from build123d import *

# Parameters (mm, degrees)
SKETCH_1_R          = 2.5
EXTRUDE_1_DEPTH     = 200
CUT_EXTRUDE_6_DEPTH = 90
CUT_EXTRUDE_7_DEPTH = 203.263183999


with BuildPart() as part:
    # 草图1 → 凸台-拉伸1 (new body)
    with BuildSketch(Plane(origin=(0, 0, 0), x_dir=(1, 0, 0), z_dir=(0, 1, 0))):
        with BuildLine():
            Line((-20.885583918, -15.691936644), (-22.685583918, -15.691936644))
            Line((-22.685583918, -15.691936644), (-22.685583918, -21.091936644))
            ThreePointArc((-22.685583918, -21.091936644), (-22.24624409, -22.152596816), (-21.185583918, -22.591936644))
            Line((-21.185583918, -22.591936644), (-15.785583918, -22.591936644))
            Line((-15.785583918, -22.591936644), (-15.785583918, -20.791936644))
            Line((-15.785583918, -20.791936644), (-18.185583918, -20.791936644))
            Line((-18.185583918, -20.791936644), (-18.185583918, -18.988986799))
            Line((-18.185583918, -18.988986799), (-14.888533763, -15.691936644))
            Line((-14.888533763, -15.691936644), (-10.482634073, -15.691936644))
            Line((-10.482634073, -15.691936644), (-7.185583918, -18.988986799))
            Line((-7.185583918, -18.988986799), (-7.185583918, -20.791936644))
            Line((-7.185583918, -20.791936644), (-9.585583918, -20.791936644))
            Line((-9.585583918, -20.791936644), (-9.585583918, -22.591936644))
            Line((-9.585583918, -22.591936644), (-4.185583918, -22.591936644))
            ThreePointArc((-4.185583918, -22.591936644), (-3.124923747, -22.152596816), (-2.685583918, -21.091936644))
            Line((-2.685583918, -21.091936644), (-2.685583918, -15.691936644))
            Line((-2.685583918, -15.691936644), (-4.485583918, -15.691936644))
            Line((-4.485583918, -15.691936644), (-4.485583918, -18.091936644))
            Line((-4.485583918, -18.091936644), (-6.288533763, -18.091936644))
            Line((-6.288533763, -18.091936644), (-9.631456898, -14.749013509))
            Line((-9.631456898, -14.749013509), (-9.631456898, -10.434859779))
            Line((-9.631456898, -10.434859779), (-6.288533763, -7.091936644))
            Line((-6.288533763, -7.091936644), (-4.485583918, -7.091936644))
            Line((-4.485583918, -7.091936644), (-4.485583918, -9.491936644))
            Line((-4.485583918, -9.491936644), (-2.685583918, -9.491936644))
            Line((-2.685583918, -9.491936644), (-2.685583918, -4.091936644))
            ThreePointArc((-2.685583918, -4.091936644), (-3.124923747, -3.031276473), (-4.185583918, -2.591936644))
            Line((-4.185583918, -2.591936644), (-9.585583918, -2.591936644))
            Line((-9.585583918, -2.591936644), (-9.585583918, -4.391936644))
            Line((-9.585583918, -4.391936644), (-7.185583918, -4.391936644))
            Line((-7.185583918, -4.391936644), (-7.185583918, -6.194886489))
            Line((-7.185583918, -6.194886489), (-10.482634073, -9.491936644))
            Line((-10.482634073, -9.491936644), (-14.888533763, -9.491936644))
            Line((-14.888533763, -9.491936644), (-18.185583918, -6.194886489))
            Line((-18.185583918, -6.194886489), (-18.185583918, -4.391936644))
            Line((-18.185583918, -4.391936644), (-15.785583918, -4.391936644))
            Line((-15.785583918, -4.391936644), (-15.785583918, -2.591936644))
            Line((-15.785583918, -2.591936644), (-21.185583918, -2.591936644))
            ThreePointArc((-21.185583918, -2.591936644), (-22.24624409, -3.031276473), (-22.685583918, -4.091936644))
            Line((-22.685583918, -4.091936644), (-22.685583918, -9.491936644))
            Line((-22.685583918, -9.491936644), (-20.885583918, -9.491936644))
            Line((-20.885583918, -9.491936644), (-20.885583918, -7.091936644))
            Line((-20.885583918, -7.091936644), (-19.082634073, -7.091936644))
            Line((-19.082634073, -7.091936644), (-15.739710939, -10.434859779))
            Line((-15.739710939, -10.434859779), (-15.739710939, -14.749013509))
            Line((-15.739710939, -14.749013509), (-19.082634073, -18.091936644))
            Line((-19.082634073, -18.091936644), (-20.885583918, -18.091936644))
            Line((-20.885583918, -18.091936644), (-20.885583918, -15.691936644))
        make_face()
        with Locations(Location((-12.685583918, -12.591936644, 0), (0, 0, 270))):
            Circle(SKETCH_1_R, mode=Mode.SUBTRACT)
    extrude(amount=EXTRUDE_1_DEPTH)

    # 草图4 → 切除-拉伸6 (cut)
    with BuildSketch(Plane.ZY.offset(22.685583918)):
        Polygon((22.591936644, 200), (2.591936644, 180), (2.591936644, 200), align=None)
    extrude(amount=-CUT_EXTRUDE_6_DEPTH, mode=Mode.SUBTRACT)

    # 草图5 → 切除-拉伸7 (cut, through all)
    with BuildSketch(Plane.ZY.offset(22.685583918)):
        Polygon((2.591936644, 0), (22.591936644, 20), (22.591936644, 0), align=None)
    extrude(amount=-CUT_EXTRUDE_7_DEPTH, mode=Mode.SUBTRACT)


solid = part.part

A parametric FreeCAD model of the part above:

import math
import FreeCAD as App
import Part
import Sketcher

V = App.Vector
Q = App.Units.Quantity

doc = App.newDocument("Part")
body = doc.addObject("PartDesign::Body", "Body")

# Sketch on XZ plane
sketch1 = body.newObject("Sketcher::SketchObject", "Sketch")
sketch1.AttachmentSupport = (doc.getObject("XZ_Plane"), [""])
sketch1.MapMode = "FlatFace"
sketch1.addGeometry([
    Part.LineSegment(V(-20.885584, 15.691937, 0), V(-22.685584, 15.691937, 0)),  # 0
    Part.LineSegment(V(-22.685584, 15.691937, 0), V(-22.685584, 21.091937, 0)),  # 1
    Part.ArcOfCircle(Part.Circle(V(-21.185584, 21.091937, 0), V(0, 0, 1), 1.5), math.radians(90), math.radians(180)),  # 2
    Part.LineSegment(V(-21.185584, 22.591937, 0), V(-15.785584, 22.591937, 0)),  # 3
    Part.LineSegment(V(-15.785584, 22.591937, 0), V(-15.785584, 20.791937, 0)),  # 4
    Part.LineSegment(V(-15.785584, 20.791937, 0), V(-18.185584, 20.791937, 0)),  # 5
    Part.LineSegment(V(-18.185584, 20.791937, 0), V(-18.185584, 18.988987, 0)),  # 6
    Part.LineSegment(V(-18.185584, 18.988987, 0), V(-14.888534, 15.691937, 0)),  # 7
    Part.LineSegment(V(-14.888534, 15.691937, 0), V(-10.482634, 15.691937, 0)),  # 8
    Part.LineSegment(V(-10.482634, 15.691937, 0), V(-7.185584, 18.988987, 0)),  # 9
    Part.LineSegment(V(-7.185584, 18.988987, 0), V(-7.185584, 20.791937, 0)),  # 10
    Part.LineSegment(V(-7.185584, 20.791937, 0), V(-9.585584, 20.791937, 0)),  # 11
    Part.LineSegment(V(-9.585584, 20.791937, 0), V(-9.585584, 22.591937, 0)),  # 12
    Part.LineSegment(V(-9.585584, 22.591937, 0), V(-4.185584, 22.591937, 0)),  # 13
    Part.ArcOfCircle(Part.Circle(V(-4.185584, 21.091937, 0), V(0, 0, 1), 1.5), math.radians(0), math.radians(90)),  # 14
    Part.LineSegment(V(-2.685584, 21.091937, 0), V(-2.685584, 15.691937, 0)),  # 15
    Part.LineSegment(V(-2.685584, 15.691937, 0), V(-4.485584, 15.691937, 0)),  # 16
    Part.LineSegment(V(-4.485584, 15.691937, 0), V(-4.485584, 18.091937, 0)),  # 17
    Part.LineSegment(V(-4.485584, 18.091937, 0), V(-6.288534, 18.091937, 0)),  # 18
    Part.LineSegment(V(-6.288534, 18.091937, 0), V(-9.631457, 14.749014, 0)),  # 19
    Part.LineSegment(V(-9.631457, 14.749014, 0), V(-9.631457, 10.43486, 0)),  # 20
    Part.LineSegment(V(-9.631457, 10.43486, 0), V(-6.288534, 7.091937, 0)),  # 21
    Part.LineSegment(V(-6.288534, 7.091937, 0), V(-4.485584, 7.091937, 0)),  # 22
    Part.LineSegment(V(-4.485584, 7.091937, 0), V(-4.485584, 9.491937, 0)),  # 23
    Part.LineSegment(V(-4.485584, 9.491937, 0), V(-2.685584, 9.491937, 0)),  # 24
    Part.LineSegment(V(-2.685584, 9.491937, 0), V(-2.685584, 4.091937, 0)),  # 25
    Part.ArcOfCircle(Part.Circle(V(-4.185584, 4.091937, 0), V(0, 0, 1), 1.5), math.radians(-90), math.radians(0)),  # 26
    Part.LineSegment(V(-4.185584, 2.591937, 0), V(-9.585584, 2.591937, 0)),  # 27
    Part.LineSegment(V(-9.585584, 2.591937, 0), V(-9.585584, 4.391937, 0)),  # 28
    Part.LineSegment(V(-9.585584, 4.391937, 0), V(-7.185584, 4.391937, 0)),  # 29
    Part.LineSegment(V(-7.185584, 4.391937, 0), V(-7.185584, 6.194886, 0)),  # 30
    Part.LineSegment(V(-7.185584, 6.194886, 0), V(-10.482634, 9.491937, 0)),  # 31
    Part.LineSegment(V(-10.482634, 9.491937, 0), V(-14.888534, 9.491937, 0)),  # 32
    Part.LineSegment(V(-14.888534, 9.491937, 0), V(-18.185584, 6.194886, 0)),  # 33
    Part.LineSegment(V(-18.185584, 6.194886, 0), V(-18.185584, 4.391937, 0)),  # 34
    Part.LineSegment(V(-18.185584, 4.391937, 0), V(-15.785584, 4.391937, 0)),  # 35
    Part.LineSegment(V(-15.785584, 4.391937, 0), V(-15.785584, 2.591937, 0)),  # 36
    Part.LineSegment(V(-15.785584, 2.591937, 0), V(-21.185584, 2.591937, 0)),  # 37
    Part.ArcOfCircle(Part.Circle(V(-21.185584, 4.091937, 0), V(0, 0, 1), 1.5), math.radians(-180), math.radians(-90)),  # 38
    Part.LineSegment(V(-22.685584, 4.091937, 0), V(-22.685584, 9.491937, 0)),  # 39
    Part.LineSegment(V(-22.685584, 9.491937, 0), V(-20.885584, 9.491937, 0)),  # 40
    Part.LineSegment(V(-20.885584, 9.491937, 0), V(-20.885584, 7.091937, 0)),  # 41
    Part.LineSegment(V(-20.885584, 7.091937, 0), V(-19.082634, 7.091937, 0)),  # 42
    Part.LineSegment(V(-19.082634, 7.091937, 0), V(-15.739711, 10.43486, 0)),  # 43
    Part.LineSegment(V(-15.739711, 10.43486, 0), V(-15.739711, 14.749014, 0)),  # 44
    Part.LineSegment(V(-15.739711, 14.749014, 0), V(-19.082634, 18.091937, 0)),  # 45
    Part.LineSegment(V(-19.082634, 18.091937, 0), V(-20.885584, 18.091937, 0)),  # 46
    Part.LineSegment(V(-20.885584, 18.091937, 0), V(-20.885584, 15.691937, 0)),  # 47
    Part.Circle(V(-12.685584, 12.591937, 0), V(0, 0, 1), 2.5),  # 48
], False)
sketch1.addConstraint([
    Sketcher.Constraint("Coincident", 0, 2, 1, 1),
    Sketcher.Constraint("Tangent", 1, 2, 2, 2),
    Sketcher.Constraint("Tangent", 2, 1, 3, 1),
    Sketcher.Constraint("Coincident", 3, 2, 4, 1),
    Sketcher.Constraint("Coincident", 4, 2, 5, 1),
    Sketcher.Constraint("Coincident", 5, 2, 6, 1),
    Sketcher.Constraint("Coincident", 6, 2, 7, 1),
    Sketcher.Constraint("Coincident", 7, 2, 8, 1),
    Sketcher.Constraint("Coincident", 8, 2, 9, 1),
    Sketcher.Constraint("Coincident", 9, 2, 10, 1),
    Sketcher.Constraint("Coincident", 10, 2, 11, 1),
    Sketcher.Constraint("Coincident", 11, 2, 12, 1),
    Sketcher.Constraint("Coincident", 12, 2, 13, 1),
    Sketcher.Constraint("Tangent", 13, 2, 14, 2),
    Sketcher.Constraint("Tangent", 14, 1, 15, 1),
    Sketcher.Constraint("Coincident", 15, 2, 16, 1),
    Sketcher.Constraint("Coincident", 16, 2, 17, 1),
    Sketcher.Constraint("Coincident", 17, 2, 18, 1),
    Sketcher.Constraint("Coincident", 18, 2, 19, 1),
    Sketcher.Constraint("Coincident", 19, 2, 20, 1),
    Sketcher.Constraint("Coincident", 20, 2, 21, 1),
    Sketcher.Constraint("Coincident", 21, 2, 22, 1),
    Sketcher.Constraint("Coincident", 22, 2, 23, 1),
    Sketcher.Constraint("Coincident", 23, 2, 24, 1),
    Sketcher.Constraint("Coincident", 24, 2, 25, 1),
    Sketcher.Constraint("Tangent", 25, 2, 26, 2),
    Sketcher.Constraint("Tangent", 26, 1, 27, 1),
    Sketcher.Constraint("Coincident", 27, 2, 28, 1),
    Sketcher.Constraint("Coincident", 28, 2, 29, 1),
    Sketcher.Constraint("Coincident", 29, 2, 30, 1),
    Sketcher.Constraint("Coincident", 30, 2, 31, 1),
    Sketcher.Constraint("Coincident", 31, 2, 32, 1),
    Sketcher.Constraint("Coincident", 32, 2, 33, 1),
    Sketcher.Constraint("Coincident", 33, 2, 34, 1),
    Sketcher.Constraint("Coincident", 34, 2, 35, 1),
    Sketcher.Constraint("Coincident", 35, 2, 36, 1),
    Sketcher.Constraint("Coincident", 36, 2, 37, 1),
    Sketcher.Constraint("Tangent", 37, 2, 38, 2),
    Sketcher.Constraint("Tangent", 38, 1, 39, 1),
    Sketcher.Constraint("Coincident", 39, 2, 40, 1),
    Sketcher.Constraint("Coincident", 40, 2, 41, 1),
    Sketcher.Constraint("Coincident", 41, 2, 42, 1),
    Sketcher.Constraint("Coincident", 42, 2, 43, 1),
    Sketcher.Constraint("Coincident", 43, 2, 44, 1),
    Sketcher.Constraint("Coincident", 44, 2, 45, 1),
    Sketcher.Constraint("Coincident", 45, 2, 46, 1),
    Sketcher.Constraint("Coincident", 46, 2, 47, 1),
    Sketcher.Constraint("Coincident", 47, 2, 0, 1),
    Sketcher.Constraint("Horizontal", 0),
    Sketcher.Constraint("Vertical", 1),
    Sketcher.Constraint("Horizontal", 3),
    Sketcher.Constraint("Vertical", 4),
    Sketcher.Constraint("Horizontal", 5),
    Sketcher.Constraint("Vertical", 6),
    Sketcher.Constraint("Horizontal", 8),
    Sketcher.Constraint("Vertical", 10),
    Sketcher.Constraint("Horizontal", 11),
    Sketcher.Constraint("Vertical", 12),
    Sketcher.Constraint("Horizontal", 13),
    Sketcher.Constraint("Vertical", 15),
    Sketcher.Constraint("Horizontal", 16),
    Sketcher.Constraint("Vertical", 17),
    Sketcher.Constraint("Horizontal", 18),
    Sketcher.Constraint("Vertical", 20),
    Sketcher.Constraint("Horizontal", 22),
    Sketcher.Constraint("Vertical", 23),
    Sketcher.Constraint("Horizontal", 24),
    Sketcher.Constraint("Vertical", 25),
    Sketcher.Constraint("Horizontal", 27),
    Sketcher.Constraint("Vertical", 28),
    Sketcher.Constraint("Horizontal", 29),
    Sketcher.Constraint("Vertical", 30),
    Sketcher.Constraint("Horizontal", 32),
    Sketcher.Constraint("Vertical", 34),
    Sketcher.Constraint("Horizontal", 35),
    Sketcher.Constraint("Vertical", 36),
    Sketcher.Constraint("Horizontal", 37),
    Sketcher.Constraint("Vertical", 39),
    Sketcher.Constraint("Horizontal", 40),
    Sketcher.Constraint("Vertical", 41),
    Sketcher.Constraint("Horizontal", 42),
    Sketcher.Constraint("Vertical", 44),
    Sketcher.Constraint("Horizontal", 46),
    Sketcher.Constraint("Vertical", 47),
    Sketcher.Constraint("Equal", 2, 14),
    Sketcher.Constraint("Equal", 14, 26),
    Sketcher.Constraint("Equal", 26, 38),
    Sketcher.Constraint("Perpendicular", 7, 9),
    Sketcher.Constraint("Parallel", 9, 19),
    Sketcher.Constraint("Perpendicular", 19, 21),
    Sketcher.Constraint("Parallel", 21, 31),
    Sketcher.Constraint("Perpendicular", 31, 33),
    Sketcher.Constraint("Parallel", 33, 43),
    Sketcher.Constraint("Perpendicular", 43, 45),
    Sketcher.Constraint("Horizontal", 2, 3, 14, 3),
    Sketcher.Constraint("Horizontal", 26, 3, 38, 3),
    Sketcher.Constraint("Horizontal", 0, 2, 7, 2),
    Sketcher.Constraint("Horizontal", 6, 2, 9, 2),
    Sketcher.Constraint("Horizontal", 5, 2, 10, 2),
    Sketcher.Constraint("Horizontal", 8, 2, 15, 2),
    Sketcher.Constraint("Horizontal", 24, 2, 31, 2),
    Sketcher.Constraint("Horizontal", 30, 2, 33, 2),
    Sketcher.Constraint("Horizontal", 29, 2, 34, 2),
    Sketcher.Constraint("Horizontal", 32, 2, 39, 2),
    Sketcher.Constraint("Horizontal", 22, 2, 41, 2),
    Sketcher.Constraint("Horizontal", 20, 2, 43, 2),
    Sketcher.Constraint("Horizontal", 19, 2, 44, 2),
    Sketcher.Constraint("Horizontal", 18, 2, 45, 2),
    Sketcher.Constraint("Vertical", 14, 3, 26, 3),
    Sketcher.Constraint("Vertical", 2, 3, 38, 3),
    Sketcher.Constraint("Vertical", 18, 2, 21, 2),
    Sketcher.Constraint("Vertical", 17, 2, 22, 2),
    Sketcher.Constraint("Vertical", 12, 2, 27, 2),
    Sketcher.Constraint("Vertical", 10, 2, 29, 2),
    Sketcher.Constraint("Vertical", 8, 2, 31, 2),
    Sketcher.Constraint("Vertical", 7, 2, 32, 2),
    Sketcher.Constraint("Vertical", 6, 2, 33, 2),
    Sketcher.Constraint("Vertical", 4, 2, 35, 2),
    Sketcher.Constraint("Vertical", 41, 2, 46, 2),
    Sketcher.Constraint("Equal", 5, 11),
    Sketcher.Constraint("Equal", 3, 13),
    Sketcher.Constraint("Equal", 0, 16),
    Sketcher.Constraint("Equal", 22, 42),
    Sketcher.Constraint("Equal", 37, 1),
    Sketcher.Constraint("Equal", 40, 4),
    Sketcher.Constraint("Equal", 46, 6),
    Sketcher.Constraint("Equal", 35, 17),
    Sketcher.Constraint("Equal", 17, 23),
    Sketcher.Constraint("Equal", 15, 25),
    Sketcher.Constraint("Equal", 12, 28),
    Sketcher.Constraint("Diameter", 48, Q("5 mm")),
    Sketcher.Constraint("Radius", 2, Q("1.5 mm")),
    Sketcher.Constraint("DistanceX", 0, 2, 0, 1, Q("1.8 mm")),
    Sketcher.Constraint("DistanceX", 3, 1, 3, 2, Q("5.4 mm")),
    Sketcher.Constraint("DistanceX", 5, 2, 5, 1, Q("2.4 mm")),
    Sketcher.Constraint("DistanceX", 2, 3, 14, 3, Q("17 mm")),
    Sketcher.Constraint("DistanceY", 26, 3, 14, 3, Q("17 mm")),
    Sketcher.Constraint("DistanceX", 0, 2, 48, 3, Q("10 mm")),
    Sketcher.Constraint("DistanceY", 48, 3, 2, 1, Q("10 mm")),
    Sketcher.Constraint("DistanceX", 8, 1, 8, 2, Q("4.4059 mm")),
    Sketcher.Constraint("DistanceY", 20, 2, 20, 1, Q("4.314154 mm")),
    Sketcher.Constraint("DistanceY", -1, 1, 20, 2, Q("10.43486 mm")),
    Sketcher.Constraint("DistanceX", 43, 2, -1, 1, Q("15.739711 mm")),
])
pad1 = body.newObject("PartDesign::Pad", "Pad")
pad1.Profile = sketch1
pad1.Length = 200
pad1.Reversed = True

# Sketch on YZ plane
sketch2 = body.newObject("Sketcher::SketchObject", "Sketch001")
sketch2.AttachmentSupport = (doc.getObject("YZ_Plane"), [""])
sketch2.MapMode = "FlatFace"
sketch2.AttachmentOffset = App.Placement(V(0, 0, -22.685584), App.Rotation())
sketch2.addGeometry([
    Part.LineSegment(V(180, 2.591937, 0), V(200, 22.591937, 0)),
    Part.LineSegment(V(200, 22.591937, 0), V(200, 2.591937, 0)),
    Part.LineSegment(V(200, 2.591937, 0), V(180, 2.591937, 0)),
], False)
sketch2.addConstraint([
    Sketcher.Constraint("Coincident", 0, 2, 1, 1),
    Sketcher.Constraint("Coincident", 1, 2, 2, 1),
    Sketcher.Constraint("Coincident", 2, 2, 0, 1),
    Sketcher.Constraint("Vertical", 1),
    Sketcher.Constraint("Horizontal", 2),
    Sketcher.Constraint("Equal", 2, 1),
    Sketcher.Constraint("DistanceX", 2, 2, 2, 1, Q("20 mm")),
    Sketcher.Constraint("DistanceX", -1, 1, 0, 2, Q("200 mm")),
    Sketcher.Constraint("DistanceY", -1, 1, 0, 2, Q("22.591937 mm")),
])
pocket1 = body.newObject("PartDesign::Pocket", "Pocket")
pocket1.Profile = sketch2
pocket1.Length = 90
pocket1.Reversed = True

# Sketch on YZ plane
sketch3 = body.newObject("Sketcher::SketchObject", "Sketch002")
sketch3.AttachmentSupport = (doc.getObject("YZ_Plane"), [""])
sketch3.MapMode = "FlatFace"
sketch3.AttachmentOffset = App.Placement(V(0, 0, -22.685584), App.Rotation())
sketch3.addGeometry([
    Part.LineSegment(V(20, 22.591937, 0), V(0, 2.591937, 0)),
    Part.LineSegment(V(0, 2.591937, 0), V(0, 22.591937, 0)),
    Part.LineSegment(V(0, 22.591937, 0), V(20, 22.591937, 0)),
], False)
sketch3.addConstraint([
    Sketcher.Constraint("Coincident", 0, 2, 1, 1),
    Sketcher.Constraint("Coincident", 1, 2, 2, 1),
    Sketcher.Constraint("Coincident", 2, 2, 0, 1),
    Sketcher.Constraint("Vertical", 1),
    Sketcher.Constraint("Horizontal", 2),
    Sketcher.Constraint("PointOnObject", 0, 2, -2),
    Sketcher.Constraint("Equal", 2, 1),
    Sketcher.Constraint("DistanceX", 2, 1, 2, 2, Q("20 mm")),
    Sketcher.Constraint("DistanceY", -1, 1, 0, 2, Q("2.591937 mm")),
])
pocket2 = body.newObject("PartDesign::Pocket", "Pocket001")
pocket2.Profile = sketch3
pocket2.Type = "ThroughAll"
pocket2.Reversed = True

doc.recompute()
